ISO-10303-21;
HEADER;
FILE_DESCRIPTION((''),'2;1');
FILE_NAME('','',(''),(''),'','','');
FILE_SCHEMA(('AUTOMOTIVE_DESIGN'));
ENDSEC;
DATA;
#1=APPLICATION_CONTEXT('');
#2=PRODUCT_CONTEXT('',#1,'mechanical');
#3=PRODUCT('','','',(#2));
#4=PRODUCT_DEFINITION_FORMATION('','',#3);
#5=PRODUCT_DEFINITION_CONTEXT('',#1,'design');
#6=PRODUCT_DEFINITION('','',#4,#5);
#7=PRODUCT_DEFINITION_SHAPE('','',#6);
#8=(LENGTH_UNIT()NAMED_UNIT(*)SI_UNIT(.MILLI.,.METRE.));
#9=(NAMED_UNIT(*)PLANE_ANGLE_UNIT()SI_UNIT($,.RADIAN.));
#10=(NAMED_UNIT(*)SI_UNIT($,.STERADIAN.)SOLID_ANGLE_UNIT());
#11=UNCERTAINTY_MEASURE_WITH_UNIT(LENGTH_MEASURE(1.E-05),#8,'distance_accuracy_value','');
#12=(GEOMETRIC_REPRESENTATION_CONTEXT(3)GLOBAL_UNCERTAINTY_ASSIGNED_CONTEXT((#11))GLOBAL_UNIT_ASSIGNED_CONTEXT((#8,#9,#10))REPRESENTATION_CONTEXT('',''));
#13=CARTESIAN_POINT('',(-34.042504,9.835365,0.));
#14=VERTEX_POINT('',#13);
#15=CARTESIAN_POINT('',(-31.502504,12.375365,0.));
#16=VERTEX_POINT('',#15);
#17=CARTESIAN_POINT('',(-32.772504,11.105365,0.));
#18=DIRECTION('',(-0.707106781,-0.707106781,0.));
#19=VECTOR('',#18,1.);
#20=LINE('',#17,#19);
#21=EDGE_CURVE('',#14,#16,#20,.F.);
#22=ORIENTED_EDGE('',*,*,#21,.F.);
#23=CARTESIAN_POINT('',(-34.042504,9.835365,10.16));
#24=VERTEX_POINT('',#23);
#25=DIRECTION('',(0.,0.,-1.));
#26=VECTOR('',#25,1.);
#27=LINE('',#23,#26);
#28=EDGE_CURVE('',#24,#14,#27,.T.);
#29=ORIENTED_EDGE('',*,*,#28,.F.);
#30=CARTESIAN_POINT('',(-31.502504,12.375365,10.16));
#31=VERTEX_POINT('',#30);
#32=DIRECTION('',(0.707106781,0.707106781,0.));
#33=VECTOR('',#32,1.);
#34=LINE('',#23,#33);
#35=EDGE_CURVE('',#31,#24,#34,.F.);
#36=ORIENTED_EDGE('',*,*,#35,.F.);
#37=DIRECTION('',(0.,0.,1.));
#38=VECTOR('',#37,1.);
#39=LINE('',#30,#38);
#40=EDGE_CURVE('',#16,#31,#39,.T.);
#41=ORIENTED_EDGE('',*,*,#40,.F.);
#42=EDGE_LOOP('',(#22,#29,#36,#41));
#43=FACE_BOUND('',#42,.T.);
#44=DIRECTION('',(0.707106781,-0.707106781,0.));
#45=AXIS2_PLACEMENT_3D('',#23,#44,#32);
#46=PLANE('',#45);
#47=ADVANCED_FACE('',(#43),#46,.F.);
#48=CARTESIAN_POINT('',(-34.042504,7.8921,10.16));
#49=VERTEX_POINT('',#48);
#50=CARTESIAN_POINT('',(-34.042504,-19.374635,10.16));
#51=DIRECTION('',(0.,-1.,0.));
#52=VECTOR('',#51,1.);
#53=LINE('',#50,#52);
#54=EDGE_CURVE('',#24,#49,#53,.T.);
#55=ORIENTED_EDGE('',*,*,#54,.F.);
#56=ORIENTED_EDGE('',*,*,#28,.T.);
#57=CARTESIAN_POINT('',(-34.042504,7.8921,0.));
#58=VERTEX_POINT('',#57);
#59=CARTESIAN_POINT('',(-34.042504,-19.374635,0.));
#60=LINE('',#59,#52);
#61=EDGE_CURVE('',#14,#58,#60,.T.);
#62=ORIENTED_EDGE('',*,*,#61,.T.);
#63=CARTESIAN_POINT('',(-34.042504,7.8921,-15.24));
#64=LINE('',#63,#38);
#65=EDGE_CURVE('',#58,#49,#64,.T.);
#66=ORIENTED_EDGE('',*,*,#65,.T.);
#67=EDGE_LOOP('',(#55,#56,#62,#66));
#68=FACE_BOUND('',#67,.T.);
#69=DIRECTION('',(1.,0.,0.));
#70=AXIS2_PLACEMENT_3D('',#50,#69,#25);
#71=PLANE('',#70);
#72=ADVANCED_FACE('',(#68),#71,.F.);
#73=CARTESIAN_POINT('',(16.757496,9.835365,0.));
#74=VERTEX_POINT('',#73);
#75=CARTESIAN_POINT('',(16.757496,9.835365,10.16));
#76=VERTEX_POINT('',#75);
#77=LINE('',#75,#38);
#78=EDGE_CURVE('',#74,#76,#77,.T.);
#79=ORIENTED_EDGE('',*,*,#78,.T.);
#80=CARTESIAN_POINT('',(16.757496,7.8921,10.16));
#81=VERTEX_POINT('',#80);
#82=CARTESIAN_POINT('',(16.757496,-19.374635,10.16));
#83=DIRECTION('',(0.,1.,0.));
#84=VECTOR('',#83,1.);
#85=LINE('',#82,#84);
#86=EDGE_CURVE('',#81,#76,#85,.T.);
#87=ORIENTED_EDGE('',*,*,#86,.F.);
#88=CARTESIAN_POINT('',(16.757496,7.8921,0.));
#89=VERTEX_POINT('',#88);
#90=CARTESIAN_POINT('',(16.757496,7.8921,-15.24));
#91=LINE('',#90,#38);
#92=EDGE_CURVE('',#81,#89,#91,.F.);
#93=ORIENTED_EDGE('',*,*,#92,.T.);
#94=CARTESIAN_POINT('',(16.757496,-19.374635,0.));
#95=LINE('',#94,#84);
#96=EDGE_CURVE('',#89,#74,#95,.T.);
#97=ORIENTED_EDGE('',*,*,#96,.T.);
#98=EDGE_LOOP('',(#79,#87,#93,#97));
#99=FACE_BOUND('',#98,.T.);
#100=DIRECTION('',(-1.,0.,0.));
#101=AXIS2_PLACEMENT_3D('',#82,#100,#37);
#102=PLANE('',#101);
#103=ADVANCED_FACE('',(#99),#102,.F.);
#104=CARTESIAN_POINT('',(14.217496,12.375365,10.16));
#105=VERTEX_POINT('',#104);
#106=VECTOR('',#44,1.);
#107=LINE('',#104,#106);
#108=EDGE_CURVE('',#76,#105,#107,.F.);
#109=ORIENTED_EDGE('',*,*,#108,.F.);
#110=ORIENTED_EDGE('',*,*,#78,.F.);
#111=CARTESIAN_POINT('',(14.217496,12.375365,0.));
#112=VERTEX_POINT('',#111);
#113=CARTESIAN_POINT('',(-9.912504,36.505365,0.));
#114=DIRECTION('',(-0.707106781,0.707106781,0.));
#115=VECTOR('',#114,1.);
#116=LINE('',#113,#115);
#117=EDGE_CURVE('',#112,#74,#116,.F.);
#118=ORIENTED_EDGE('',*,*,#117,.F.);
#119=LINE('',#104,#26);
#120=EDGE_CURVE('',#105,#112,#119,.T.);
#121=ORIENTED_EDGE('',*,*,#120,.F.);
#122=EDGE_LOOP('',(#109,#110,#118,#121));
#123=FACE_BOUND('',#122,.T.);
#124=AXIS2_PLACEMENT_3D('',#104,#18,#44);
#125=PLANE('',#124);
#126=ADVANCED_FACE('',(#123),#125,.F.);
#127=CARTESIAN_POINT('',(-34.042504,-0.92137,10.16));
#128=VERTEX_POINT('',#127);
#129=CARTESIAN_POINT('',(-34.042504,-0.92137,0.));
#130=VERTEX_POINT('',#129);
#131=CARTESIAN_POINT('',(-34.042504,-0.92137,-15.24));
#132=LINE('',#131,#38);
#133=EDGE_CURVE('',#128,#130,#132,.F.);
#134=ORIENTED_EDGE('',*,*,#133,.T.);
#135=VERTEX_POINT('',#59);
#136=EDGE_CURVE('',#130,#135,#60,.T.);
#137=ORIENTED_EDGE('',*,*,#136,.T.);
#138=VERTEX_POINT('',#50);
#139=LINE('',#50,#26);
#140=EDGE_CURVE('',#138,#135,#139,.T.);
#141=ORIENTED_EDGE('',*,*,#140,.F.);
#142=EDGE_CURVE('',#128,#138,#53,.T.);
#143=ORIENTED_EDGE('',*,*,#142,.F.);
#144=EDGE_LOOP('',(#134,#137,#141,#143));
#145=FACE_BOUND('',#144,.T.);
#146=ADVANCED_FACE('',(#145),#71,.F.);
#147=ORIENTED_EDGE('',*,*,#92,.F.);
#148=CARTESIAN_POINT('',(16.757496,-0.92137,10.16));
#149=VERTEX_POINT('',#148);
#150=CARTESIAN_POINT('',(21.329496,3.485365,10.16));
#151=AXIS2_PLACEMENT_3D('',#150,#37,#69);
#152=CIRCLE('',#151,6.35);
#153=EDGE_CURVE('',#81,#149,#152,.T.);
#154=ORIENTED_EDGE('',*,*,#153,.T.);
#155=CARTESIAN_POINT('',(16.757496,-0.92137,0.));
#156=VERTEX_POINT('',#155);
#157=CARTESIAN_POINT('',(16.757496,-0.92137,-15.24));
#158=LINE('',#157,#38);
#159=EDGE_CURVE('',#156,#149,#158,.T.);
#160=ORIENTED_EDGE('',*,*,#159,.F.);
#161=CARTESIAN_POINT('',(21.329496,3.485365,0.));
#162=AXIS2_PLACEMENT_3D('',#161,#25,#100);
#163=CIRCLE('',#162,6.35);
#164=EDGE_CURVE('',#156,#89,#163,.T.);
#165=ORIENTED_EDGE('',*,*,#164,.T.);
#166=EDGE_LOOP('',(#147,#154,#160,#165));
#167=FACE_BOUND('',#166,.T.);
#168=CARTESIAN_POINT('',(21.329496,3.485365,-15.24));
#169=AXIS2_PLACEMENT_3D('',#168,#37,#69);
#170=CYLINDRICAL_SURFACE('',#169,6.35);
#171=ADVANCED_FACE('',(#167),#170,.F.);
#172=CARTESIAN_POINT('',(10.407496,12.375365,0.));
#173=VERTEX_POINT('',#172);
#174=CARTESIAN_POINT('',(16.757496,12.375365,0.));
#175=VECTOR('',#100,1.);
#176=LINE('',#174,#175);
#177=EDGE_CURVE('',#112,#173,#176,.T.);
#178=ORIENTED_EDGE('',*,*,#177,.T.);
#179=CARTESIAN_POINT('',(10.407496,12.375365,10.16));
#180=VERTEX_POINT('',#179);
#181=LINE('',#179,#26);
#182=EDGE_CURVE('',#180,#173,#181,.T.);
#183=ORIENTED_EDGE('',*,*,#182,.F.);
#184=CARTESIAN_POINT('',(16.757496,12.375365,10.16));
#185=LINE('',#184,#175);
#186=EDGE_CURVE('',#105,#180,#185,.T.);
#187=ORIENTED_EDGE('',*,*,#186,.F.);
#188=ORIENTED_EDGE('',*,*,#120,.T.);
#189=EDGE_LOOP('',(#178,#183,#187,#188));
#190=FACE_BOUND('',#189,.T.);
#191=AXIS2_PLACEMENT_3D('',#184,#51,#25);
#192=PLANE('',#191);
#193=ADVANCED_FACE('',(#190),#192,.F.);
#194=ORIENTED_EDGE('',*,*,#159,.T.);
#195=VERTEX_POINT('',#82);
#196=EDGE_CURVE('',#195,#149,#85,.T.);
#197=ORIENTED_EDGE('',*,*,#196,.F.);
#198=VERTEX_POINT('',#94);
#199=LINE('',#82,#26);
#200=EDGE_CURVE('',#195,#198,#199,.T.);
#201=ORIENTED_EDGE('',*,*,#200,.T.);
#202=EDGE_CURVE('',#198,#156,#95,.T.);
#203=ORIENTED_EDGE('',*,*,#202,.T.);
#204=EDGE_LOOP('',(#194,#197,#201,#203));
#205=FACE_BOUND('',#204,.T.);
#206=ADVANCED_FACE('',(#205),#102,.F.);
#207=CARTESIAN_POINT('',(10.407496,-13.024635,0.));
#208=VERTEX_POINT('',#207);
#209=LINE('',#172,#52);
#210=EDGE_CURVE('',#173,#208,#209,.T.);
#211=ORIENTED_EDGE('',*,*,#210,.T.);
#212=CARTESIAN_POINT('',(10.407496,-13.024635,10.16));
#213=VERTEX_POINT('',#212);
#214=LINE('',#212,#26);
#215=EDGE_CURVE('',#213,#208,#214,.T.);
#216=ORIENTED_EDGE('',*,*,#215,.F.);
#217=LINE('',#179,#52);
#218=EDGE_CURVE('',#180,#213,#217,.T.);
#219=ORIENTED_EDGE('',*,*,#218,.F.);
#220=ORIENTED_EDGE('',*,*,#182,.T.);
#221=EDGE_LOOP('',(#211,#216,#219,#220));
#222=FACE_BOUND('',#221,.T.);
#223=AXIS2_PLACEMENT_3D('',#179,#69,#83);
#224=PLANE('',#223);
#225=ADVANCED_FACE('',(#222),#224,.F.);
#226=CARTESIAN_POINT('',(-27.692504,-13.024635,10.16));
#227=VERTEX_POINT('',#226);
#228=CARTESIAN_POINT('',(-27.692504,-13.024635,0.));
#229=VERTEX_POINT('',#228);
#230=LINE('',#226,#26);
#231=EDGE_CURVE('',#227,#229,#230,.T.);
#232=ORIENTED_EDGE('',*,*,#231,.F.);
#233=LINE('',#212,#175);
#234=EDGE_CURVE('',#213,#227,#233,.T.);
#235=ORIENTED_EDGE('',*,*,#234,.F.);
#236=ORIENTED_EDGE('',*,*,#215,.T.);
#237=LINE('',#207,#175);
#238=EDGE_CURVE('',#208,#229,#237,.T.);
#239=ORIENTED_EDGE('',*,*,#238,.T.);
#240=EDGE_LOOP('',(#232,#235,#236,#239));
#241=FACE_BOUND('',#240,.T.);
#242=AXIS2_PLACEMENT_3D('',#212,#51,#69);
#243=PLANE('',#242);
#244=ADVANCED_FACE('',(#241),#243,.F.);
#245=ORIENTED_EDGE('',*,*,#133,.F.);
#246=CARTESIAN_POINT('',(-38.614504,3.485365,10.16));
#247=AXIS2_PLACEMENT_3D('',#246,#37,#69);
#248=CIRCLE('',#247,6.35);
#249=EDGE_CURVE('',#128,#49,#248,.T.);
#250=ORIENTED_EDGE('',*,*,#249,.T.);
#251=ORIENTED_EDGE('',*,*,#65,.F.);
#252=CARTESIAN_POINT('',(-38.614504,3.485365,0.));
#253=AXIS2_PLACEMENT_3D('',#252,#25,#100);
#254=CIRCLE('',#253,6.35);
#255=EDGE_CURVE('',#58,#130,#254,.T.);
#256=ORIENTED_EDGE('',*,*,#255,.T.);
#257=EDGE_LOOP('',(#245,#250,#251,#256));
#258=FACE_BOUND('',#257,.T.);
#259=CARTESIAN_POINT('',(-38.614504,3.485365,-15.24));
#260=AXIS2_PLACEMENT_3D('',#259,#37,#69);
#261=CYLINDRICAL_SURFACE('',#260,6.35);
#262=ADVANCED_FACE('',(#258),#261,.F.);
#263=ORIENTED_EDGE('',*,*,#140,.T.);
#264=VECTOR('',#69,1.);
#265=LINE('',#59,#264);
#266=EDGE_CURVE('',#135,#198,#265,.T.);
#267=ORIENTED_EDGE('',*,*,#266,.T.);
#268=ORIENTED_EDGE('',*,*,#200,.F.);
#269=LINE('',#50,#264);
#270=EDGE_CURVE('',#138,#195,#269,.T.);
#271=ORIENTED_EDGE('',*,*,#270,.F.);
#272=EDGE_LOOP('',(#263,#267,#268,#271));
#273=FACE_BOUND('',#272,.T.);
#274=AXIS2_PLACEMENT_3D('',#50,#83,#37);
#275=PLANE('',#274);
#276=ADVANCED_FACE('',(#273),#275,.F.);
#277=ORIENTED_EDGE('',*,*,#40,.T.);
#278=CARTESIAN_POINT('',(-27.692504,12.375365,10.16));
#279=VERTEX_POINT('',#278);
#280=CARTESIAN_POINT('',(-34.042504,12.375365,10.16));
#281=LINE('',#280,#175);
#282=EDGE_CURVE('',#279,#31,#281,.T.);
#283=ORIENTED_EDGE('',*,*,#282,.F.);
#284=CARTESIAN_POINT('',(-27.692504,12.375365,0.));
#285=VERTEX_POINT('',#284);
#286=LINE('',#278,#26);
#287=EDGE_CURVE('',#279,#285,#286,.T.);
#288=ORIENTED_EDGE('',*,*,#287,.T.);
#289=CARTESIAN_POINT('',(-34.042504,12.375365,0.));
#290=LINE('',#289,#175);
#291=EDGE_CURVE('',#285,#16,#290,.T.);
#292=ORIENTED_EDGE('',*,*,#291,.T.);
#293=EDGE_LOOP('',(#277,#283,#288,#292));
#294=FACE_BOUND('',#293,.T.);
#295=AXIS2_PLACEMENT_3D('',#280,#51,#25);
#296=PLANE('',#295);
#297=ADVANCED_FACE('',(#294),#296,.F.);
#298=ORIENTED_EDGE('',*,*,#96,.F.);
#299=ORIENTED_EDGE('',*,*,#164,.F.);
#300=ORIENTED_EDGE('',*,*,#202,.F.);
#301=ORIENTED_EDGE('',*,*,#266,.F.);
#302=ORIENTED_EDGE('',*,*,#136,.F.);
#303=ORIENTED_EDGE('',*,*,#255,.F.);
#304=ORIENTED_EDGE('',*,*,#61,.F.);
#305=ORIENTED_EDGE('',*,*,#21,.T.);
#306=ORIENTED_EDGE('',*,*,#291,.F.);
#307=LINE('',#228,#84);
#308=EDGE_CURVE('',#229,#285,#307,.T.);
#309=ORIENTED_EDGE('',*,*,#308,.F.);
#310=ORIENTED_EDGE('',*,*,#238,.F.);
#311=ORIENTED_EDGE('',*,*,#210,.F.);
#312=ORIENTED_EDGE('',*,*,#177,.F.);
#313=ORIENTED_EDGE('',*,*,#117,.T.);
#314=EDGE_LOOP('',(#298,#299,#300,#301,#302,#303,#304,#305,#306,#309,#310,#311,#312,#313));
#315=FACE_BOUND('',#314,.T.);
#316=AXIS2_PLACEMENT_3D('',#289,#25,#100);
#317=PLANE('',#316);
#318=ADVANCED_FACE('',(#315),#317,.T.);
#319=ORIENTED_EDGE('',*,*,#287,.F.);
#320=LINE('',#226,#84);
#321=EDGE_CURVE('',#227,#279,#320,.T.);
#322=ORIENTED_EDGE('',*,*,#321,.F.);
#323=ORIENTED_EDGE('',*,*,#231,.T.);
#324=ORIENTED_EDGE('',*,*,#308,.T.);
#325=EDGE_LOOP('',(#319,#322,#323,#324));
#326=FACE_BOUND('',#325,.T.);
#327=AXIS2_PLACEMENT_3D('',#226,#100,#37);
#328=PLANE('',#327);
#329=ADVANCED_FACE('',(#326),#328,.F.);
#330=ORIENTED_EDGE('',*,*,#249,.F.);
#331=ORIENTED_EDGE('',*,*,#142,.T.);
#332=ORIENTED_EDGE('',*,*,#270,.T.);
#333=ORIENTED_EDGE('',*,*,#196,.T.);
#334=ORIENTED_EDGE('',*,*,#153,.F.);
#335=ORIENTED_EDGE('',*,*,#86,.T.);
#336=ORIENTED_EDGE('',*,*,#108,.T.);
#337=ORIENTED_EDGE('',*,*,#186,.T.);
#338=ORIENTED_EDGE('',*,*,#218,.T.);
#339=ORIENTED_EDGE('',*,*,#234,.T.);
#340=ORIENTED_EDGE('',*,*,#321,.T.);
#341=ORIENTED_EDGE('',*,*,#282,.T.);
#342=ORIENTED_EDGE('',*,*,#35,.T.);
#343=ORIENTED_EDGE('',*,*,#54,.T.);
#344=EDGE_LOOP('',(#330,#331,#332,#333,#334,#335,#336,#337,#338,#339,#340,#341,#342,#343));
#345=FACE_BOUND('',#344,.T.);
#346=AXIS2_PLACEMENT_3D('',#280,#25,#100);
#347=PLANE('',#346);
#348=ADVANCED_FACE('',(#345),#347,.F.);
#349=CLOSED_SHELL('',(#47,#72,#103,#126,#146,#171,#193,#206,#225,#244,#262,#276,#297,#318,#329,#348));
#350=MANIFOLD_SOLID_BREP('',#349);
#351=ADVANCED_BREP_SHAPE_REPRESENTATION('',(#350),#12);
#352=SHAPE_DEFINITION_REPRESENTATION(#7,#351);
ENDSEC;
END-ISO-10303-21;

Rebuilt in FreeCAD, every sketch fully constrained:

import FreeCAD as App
import Part
import Sketcher
from FreeCAD import Vector
Q = App.Units.Quantity


def edges_at(feature, points):
    """Names of the edges that pass closest to the given points."""
    edges = feature.Shape.Edges
    near = lambda p: min(range(len(edges)), key=lambda i: edges[i].distToShape(Part.Vertex(*p))[0])
    return sorted({f"Edge{near(p) + 1}" for p in points})

doc = App.newDocument("Part")
params = doc.addObject("Spreadsheet::Sheet", "Params")
for row, (alias, value) in enumerate([
    ("sketch1_width", "2 in"),
    ("sketch1_height", "1 in"),
    ("sketch1_width2", "1.5 in"),
    ("sketch1_height2", "1.25 in"),
    ("pad1_length", "0.4 in"),
    ("sketch2_diameter", "0.5 in"),
    ("pocket1_length", "1 in"),
    ("chamfer_size", "0.1 in"),
    ("chamfer2_size", "0.1 in"),
], start=1):
    params.set(f"A{row}", alias)
    params.set(f"B{row}", "=" + value)
    params.setAlias(f"B{row}", alias)

body = doc.addObject("PartDesign::Body", "Body")

# Sketch on XY plane
sketch1 = doc.addObject("Sketcher::SketchObject", "Sketch")
body.addObject(sketch1)
sketch1.AttachmentSupport = (doc.XY_Plane, [""])
sketch1.MapMode = "FlatFace"
sketch1.addGeometry([
    Part.LineSegment(Vector(-34, -19, 0), Vector(17, -19, 0)),  # 0
    Part.LineSegment(Vector(17, -19, 0), Vector(17, 12, 0)),  # 1
    Part.LineSegment(Vector(17, 12, 0), Vector(10, 12, 0)),  # 2
    Part.LineSegment(Vector(10, 12, 0), Vector(10, -13, 0)),  # 3
    Part.LineSegment(Vector(10, -13, 0), Vector(-28, -13, 0)),  # 4
    Part.LineSegment(Vector(-28, -13, 0), Vector(-28, 12, 0)),  # 5
    Part.LineSegment(Vector(-28, 12, 0), Vector(-34, 12, 0)),  # 6
    Part.LineSegment(Vector(-34, 12, 0), Vector(-34, -19, 0)),  # 7
], False)
sketch1.addConstraint([
    Sketcher.Constraint("Coincident", 0, 2, 1, 1),
    Sketcher.Constraint("Coincident", 1, 2, 2, 1),
    Sketcher.Constraint("Coincident", 2, 2, 3, 1),
    Sketcher.Constraint("Coincident", 3, 2, 4, 1),
    Sketcher.Constraint("Coincident", 4, 2, 5, 1),
    Sketcher.Constraint("Coincident", 5, 2, 6, 1),
    Sketcher.Constraint("Coincident", 6, 2, 7, 1),
    Sketcher.Constraint("Coincident", 7, 2, 0, 1),
    Sketcher.Constraint("Horizontal", 0),
    Sketcher.Constraint("Vertical", 1),
    Sketcher.Constraint("Horizontal", 2),
    Sketcher.Constraint("Vertical", 3),
    Sketcher.Constraint("Horizontal", 4),
    Sketcher.Constraint("Vertical", 5),
    Sketcher.Constraint("Horizontal", 6),
    Sketcher.Constraint("Vertical", 7),
    Sketcher.Constraint("Horizontal", 2, 2, 5, 2),
    Sketcher.Constraint("Equal", 2, 6),
    Sketcher.Constraint("DistanceX", 0, 1, 0, 2, Q("2 in")),
    Sketcher.Constraint("DistanceY", 3, 2, 3, 1, Q("1 in")),
    Sketcher.Constraint("DistanceX", 4, 2, 4, 1, Q("1.5 in")),
    Sketcher.Constraint("DistanceY", 1, 1, 1, 2, Q("1.25 in")),
    Sketcher.Constraint("DistanceX", -1, 1, 0, 2, 16.757496),
    Sketcher.Constraint("DistanceY", 0, 2, -1, 1, 19.374635),
])
sketch1.setExpression("Constraints[18]", "Params.sketch1_width")
sketch1.setExpression("Constraints[19]", "Params.sketch1_height")
sketch1.setExpression("Constraints[20]", "Params.sketch1_width2")
sketch1.setExpression("Constraints[21]", "Params.sketch1_height2")
pad1 = doc.addObject("PartDesign::Pad", "Pad")
body.addObject(pad1)
pad1.Profile = sketch1
pad1.setExpression("Length", "Params.pad1_length")

# Sketch on XY plane
sketch2 = doc.addObject("Sketcher::SketchObject", "Sketch001")
body.addObject(sketch2)
sketch2.AttachmentSupport = (doc.XY_Plane, [""])
sketch2.MapMode = "FlatFace"
sketch2.AttachmentOffset = App.Placement(Vector(0, 0, 0.4 * 25.4), App.Rotation())
sketch2.addGeometry([
    Part.Circle(Vector(-39, 3, 0), Vector(0, 0, 1), 6),
    Part.Circle(Vector(21, 3, 0), Vector(0, 0, 1), 6),
], False)
sketch2.addConstraint([
    Sketcher.Constraint("Equal", 0, 1),
    Sketcher.Constraint("Horizontal", 0, 3, 1, 3),
    Sketcher.Constraint("Diameter", 0, Q("0.5 in")),
    Sketcher.Constraint("DistanceX", 0, 3, 1, 3, Q("2.36 in")),
    Sketcher.Constraint("DistanceX", 0, 3, -1, 1, 38.614504),
    Sketcher.Constraint("DistanceY", -1, 1, 0, 3, 3.485365),
])
sketch2.setExpression("Constraints[2]", "Params.sketch2_diameter")
pocket1 = doc.addObject("PartDesign::Pocket", "Pocket")
body.addObject(pocket1)
pocket1.Profile = sketch2
pocket1.setExpression("Length", "Params.pocket1_length")
doc.recompute()

chamfer = doc.addObject("PartDesign::Chamfer", "Chamfer")
body.addObject(chamfer)
chamfer.Base = (pocket1, edges_at(pocket1, [(16.757, 12.375, 5.08)]))
chamfer.setExpression("Size", "Params.chamfer_size")
doc.recompute()

chamfer2 = doc.addObject("PartDesign::Chamfer", "Chamfer001")
body.addObject(chamfer2)
chamfer2.Base = (chamfer, edges_at(chamfer, [(-34.043, 12.375, 5.08)]))
chamfer2.setExpression("Size", "Params.chamfer2_size")

doc.recompute()
